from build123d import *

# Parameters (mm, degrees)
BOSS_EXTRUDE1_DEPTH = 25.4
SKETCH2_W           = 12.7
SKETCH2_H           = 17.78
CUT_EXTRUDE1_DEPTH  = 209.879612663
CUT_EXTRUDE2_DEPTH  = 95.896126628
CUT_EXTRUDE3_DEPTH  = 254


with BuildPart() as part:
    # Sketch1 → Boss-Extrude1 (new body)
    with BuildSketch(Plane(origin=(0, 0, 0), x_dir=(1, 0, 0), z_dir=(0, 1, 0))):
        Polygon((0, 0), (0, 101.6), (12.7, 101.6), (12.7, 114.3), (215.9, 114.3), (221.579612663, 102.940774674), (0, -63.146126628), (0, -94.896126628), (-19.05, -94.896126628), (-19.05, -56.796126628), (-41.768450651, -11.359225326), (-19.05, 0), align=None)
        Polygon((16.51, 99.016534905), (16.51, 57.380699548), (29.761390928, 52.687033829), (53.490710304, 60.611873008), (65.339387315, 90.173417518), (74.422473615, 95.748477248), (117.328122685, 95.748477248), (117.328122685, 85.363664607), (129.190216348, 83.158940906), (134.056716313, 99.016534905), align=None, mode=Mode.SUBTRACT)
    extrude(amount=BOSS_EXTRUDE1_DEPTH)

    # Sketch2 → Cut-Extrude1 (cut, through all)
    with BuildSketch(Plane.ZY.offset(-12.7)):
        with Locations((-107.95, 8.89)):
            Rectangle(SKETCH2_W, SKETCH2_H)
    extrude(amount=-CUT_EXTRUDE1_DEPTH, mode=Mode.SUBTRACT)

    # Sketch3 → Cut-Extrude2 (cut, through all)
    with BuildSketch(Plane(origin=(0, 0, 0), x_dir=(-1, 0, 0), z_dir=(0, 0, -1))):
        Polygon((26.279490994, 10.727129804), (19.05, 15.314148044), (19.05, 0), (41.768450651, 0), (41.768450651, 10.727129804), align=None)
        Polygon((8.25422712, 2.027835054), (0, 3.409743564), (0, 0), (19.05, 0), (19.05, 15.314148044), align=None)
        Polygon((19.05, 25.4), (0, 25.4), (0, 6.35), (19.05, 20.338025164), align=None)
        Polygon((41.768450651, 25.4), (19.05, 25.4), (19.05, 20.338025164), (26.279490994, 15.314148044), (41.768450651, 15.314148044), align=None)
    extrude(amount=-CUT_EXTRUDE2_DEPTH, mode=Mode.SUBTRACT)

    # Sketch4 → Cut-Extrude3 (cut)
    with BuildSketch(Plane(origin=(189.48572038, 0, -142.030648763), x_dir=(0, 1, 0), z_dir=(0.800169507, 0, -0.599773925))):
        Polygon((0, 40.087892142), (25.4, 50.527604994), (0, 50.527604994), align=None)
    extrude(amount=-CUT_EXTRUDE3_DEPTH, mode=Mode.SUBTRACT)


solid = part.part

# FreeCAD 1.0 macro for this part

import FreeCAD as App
import Part
import Sketcher
Q = App.Units.Quantity


def add_polygon(sketch, points):
    """Adds a closed chain of lines whose ends are joined by coincident constraints."""
    first, n = sketch.GeometryCount, len(points)
    for a, b in zip(points, points[1:] + points[:1]):
        sketch.addGeometry(Part.LineSegment(App.Vector(*a, 0), App.Vector(*b, 0)), False)
    for i in range(n):
        sketch.addConstraint(Sketcher.Constraint("Coincident", first + i, 2, first + (i + 1) % n, 1))

doc = App.newDocument("Part")
body = doc.addObject("PartDesign::Body", "Body")

# Sketch on XZ plane
sketch1 = body.newObject("Sketcher::SketchObject", "Sketch")
sketch1.AttachmentSupport = (doc.getObject("XZ_Plane"), [""])
sketch1.MapMode = "FlatFace"
add_polygon(sketch1, [(0, -102), (0, 0), (-19, 0), (-42, 11), (-19, 57), (-19, 95), (0, 95), (0, 63), (222, -103), (216, -114), (13, -114), (13, -102)])  # lines 0-11
add_polygon(sketch1, [(17, -99), (134, -99), (129, -83), (117, -85), (117, -96), (74, -96), (65, -90), (53, -61), (30, -53), (17, -57)])  # lines 12-21
sketch1.addConstraint([
    Sketcher.Constraint("Vertical", 0),
    Sketcher.Constraint("Horizontal", 1),
    Sketcher.Constraint("Vertical", 4),
    Sketcher.Constraint("Horizontal", 5),
    Sketcher.Constraint("Vertical", 6),
    Sketcher.Constraint("Horizontal", 9),
    Sketcher.Constraint("Vertical", 10),
    Sketcher.Constraint("Horizontal", 11),
    Sketcher.Constraint("Horizontal", 12),
    Sketcher.Constraint("Vertical", 15),
    Sketcher.Constraint("Horizontal", 16),
    Sketcher.Constraint("Vertical", 21),
    Sketcher.Constraint("Coincident", 0, 2, -1, 1),
    Sketcher.Constraint("PointOnObject", 5, 2, -2),
    Sketcher.Constraint("Perpendicular", 2, 3),
    Sketcher.Constraint("Parallel", 3, 8),
    Sketcher.Constraint("Vertical", 1, 2, 3, 2),
    Sketcher.Constraint("Equal", 11, 10),
    Sketcher.Constraint("DistanceX", 9, 2, 9, 1, Q("8 in")),
    Sketcher.Constraint("DistanceY", 0, 1, 0, 2, Q("4 in")),
    Sketcher.Constraint("Distance", 2, Q("1 in")),
    Sketcher.Constraint("Distance", 3, Q("2 in")),
    Sketcher.Constraint("DistanceX", 11, 2, 11, 1, Q("0.5 in")),
    Sketcher.Constraint("DistanceY", 4, 1, 4, 2, Q("1.5 in")),
    Sketcher.Constraint("Distance", 8, Q("0.5 in")),
    Sketcher.Constraint("DistanceX", 1, 2, 1, 1, Q("0.75 in")),
    Sketcher.Constraint("DistanceY", 6, 2, 6, 1, Q("1.25 in")),
    Sketcher.Constraint("DistanceX", -1, 1, 20, 2, Q("0.65 in")),
    Sketcher.Constraint("DistanceY", 14, 2, 13, 2, Q("0.0868001 in")),
    Sketcher.Constraint("Distance", 18, Q("31.847701 mm")),
    Sketcher.Constraint("DistanceX", 16, 2, 16, 1, Q("42.905649 mm")),
    Sketcher.Constraint("DistanceY", 20, 2, -1, 1, Q("57.3807 mm")),
    Sketcher.Constraint("DistanceX", 13, 2, 12, 2, Q("4.8665 mm")),
    Sketcher.Constraint("DistanceY", 21, 2, 19, 2, Q("46.329501 mm")),
    Sketcher.Constraint("Distance", 13, Q("16.587529 mm")),
    Sketcher.Constraint("Distance", 20, Q("14.058089 mm")),
    Sketcher.Constraint("DistanceX", 12, 1, 12, 2, Q("117.546716 mm")),
    Sketcher.Constraint("DistanceY", 15, 2, 15, 1, Q("10.384813 mm")),
    Sketcher.Constraint("DistanceY", 21, 2, 21, 1, Q("41.635835 mm")),
    Sketcher.Constraint("DistanceX", -1, 1, 18, 2, Q("53.49071 mm")),
    Sketcher.Constraint("DistanceX", 14, 2, 7, 2, Q("104.25149 mm")),
    Sketcher.Constraint("DistanceY", 16, 2, 17, 2, Q("5.57506 mm")),
    Sketcher.Constraint("DistanceY", 18, 2, 19, 2, Q("7.924839 mm")),
])
pad1 = body.newObject("PartDesign::Pad", "Pad")
pad1.Profile = sketch1
pad1.Length = Q("1 in")
pad1.Reversed = True

# Sketch on YZ plane
sketch2 = body.newObject("Sketcher::SketchObject", "Sketch001")
sketch2.AttachmentSupport = (doc.getObject("YZ_Plane"), [""])
sketch2.MapMode = "FlatFace"
sketch2.AttachmentOffset = App.Placement(App.Vector(0, 0, 0.5 * 25.4), App.Rotation())
add_polygon(sketch2, [(18, -114), (0, -114), (0, -102), (18, -102)])  # lines 0-3
sketch2.addConstraint([
    Sketcher.Constraint("Horizontal", 0),
    Sketcher.Constraint("Vertical", 1),
    Sketcher.Constraint("Horizontal", 2),
    Sketcher.Constraint("Vertical", 3),
    Sketcher.Constraint("PointOnObject", 0, 2, -2),
    Sketcher.Constraint("DistanceX", 0, 2, 0, 1, Q("0.7 in")),
    Sketcher.Constraint("DistanceY", 1, 1, 1, 2, Q("0.5 in")),
    Sketcher.Constraint("DistanceY", 1, 2, -1, 1, Q("4 in")),
])
pocket1 = body.newObject("PartDesign::Pocket", "Pocket")
pocket1.Profile = sketch2
pocket1.Type = "ThroughAll"
pocket1.Reversed = True

# Sketch on XY plane
sketch3 = body.newObject("Sketcher::SketchObject", "Sketch002")
sketch3.AttachmentSupport = (doc.getObject("XY_Plane"), [""])
sketch3.MapMode = "FlatFace"
add_polygon(sketch3, [(-26.3, 10.7), (-19.1, 15.3), (-8.3, 2), (0, 3.4), (0, 0), (-41.8, 0), (-41.8, 10.7)])  # lines 0-6
add_polygon(sketch3, [(0, 25.4), (0, 6.3), (-19.1, 20.3), (-26.3, 15.3), (-41.8, 15.3), (-41.8, 25.4)])  # lines 7-12
sketch3.addConstraint([
    Sketcher.Constraint("Vertical", 3),
    Sketcher.Constraint("Horizontal", 4),
    Sketcher.Constraint("Vertical", 5),
    Sketcher.Constraint("Horizontal", 6),
    Sketcher.Constraint("Vertical", 7),
    Sketcher.Constraint("Horizontal", 10),
    Sketcher.Constraint("Vertical", 11),
    Sketcher.Constraint("Horizontal", 12),
    Sketcher.Constraint("Coincident", 3, 2, -1, 1),
    Sketcher.Constraint("PointOnObject", 7, 2, -2),
    Sketcher.Constraint("Horizontal", 0, 2, 9, 2),
    Sketcher.Constraint("Vertical", 0, 2, 8, 2),
    Sketcher.Constraint("Vertical", 6, 2, 9, 2),
    Sketcher.Constraint("Vertical", 5, 2, 10, 2),
    Sketcher.Constraint("DistanceY", -1, 1, 11, 2, Q("1 in")),
    Sketcher.Constraint("DistanceY", 7, 2, 7, 1, Q("0.75 in")),
    Sketcher.Constraint("DistanceX", 0, 2, -1, 1, Q("0.75 in")),
    Sketcher.Constraint("DistanceX", 4, 2, 4, 1, Q("41.768451 mm")),
    Sketcher.Constraint("DistanceX", 6, 1, 6, 2, Q("15.48896 mm")),
    Sketcher.Constraint("DistanceY", 5, 1, 5, 2, Q("10.72713 mm")),
    Sketcher.Constraint("DistanceY", 11, 1, 11, 2, Q("10.085852 mm")),
    Sketcher.Constraint("Distance", 1, Q("17.119428 mm")),
    Sketcher.Constraint("Distance", 8, Q("23.634029 mm")),
    Sketcher.Constraint("DistanceY", 3, 2, 3, 1, Q("3.409744 mm")),
    Sketcher.Constraint("DistanceY", 1, 2, 2, 2, Q("1.381909 mm")),
])
pocket2 = body.newObject("PartDesign::Pocket", "Pocket001")
pocket2.Profile = sketch3
pocket2.Type = "ThroughAll"
pocket2.Reversed = True

# Sketch on an angled plane
sketch4 = body.newObject("Sketcher::SketchObject", "Sketch003")
sketch4.Placement = App.Placement(App.Vector(189.48572, 0, -142.030649), App.Rotation(App.Vector(0, 1, 0), App.Vector(0.599773925, 0, 0.800169507), App.Vector(0.800169507, 0, -0.599773925), "ZXY"))
add_polygon(sketch4, [(0, 40), (25, 51), (0, 51)])  # lines 0-2
sketch4.addConstraint([
    Sketcher.Constraint("Horizontal", 1),
    Sketcher.Constraint("Vertical", 2),
    Sketcher.Constraint("PointOnObject", 1, 2, -2),
    Sketcher.Constraint("DistanceX", 1, 2, 1, 1, Q("1 in")),
    Sketcher.Constraint("Distance", 0, Q("27.461748 mm")),
    Sketcher.Constraint("DistanceY", -1, 1, 0, 2, Q("50.527605 mm")),
])
pocket3 = body.newObject("PartDesign::Pocket", "Pocket002")
pocket3.Profile = sketch4
pocket3.Length = Q("10 in")

doc.recompute()
